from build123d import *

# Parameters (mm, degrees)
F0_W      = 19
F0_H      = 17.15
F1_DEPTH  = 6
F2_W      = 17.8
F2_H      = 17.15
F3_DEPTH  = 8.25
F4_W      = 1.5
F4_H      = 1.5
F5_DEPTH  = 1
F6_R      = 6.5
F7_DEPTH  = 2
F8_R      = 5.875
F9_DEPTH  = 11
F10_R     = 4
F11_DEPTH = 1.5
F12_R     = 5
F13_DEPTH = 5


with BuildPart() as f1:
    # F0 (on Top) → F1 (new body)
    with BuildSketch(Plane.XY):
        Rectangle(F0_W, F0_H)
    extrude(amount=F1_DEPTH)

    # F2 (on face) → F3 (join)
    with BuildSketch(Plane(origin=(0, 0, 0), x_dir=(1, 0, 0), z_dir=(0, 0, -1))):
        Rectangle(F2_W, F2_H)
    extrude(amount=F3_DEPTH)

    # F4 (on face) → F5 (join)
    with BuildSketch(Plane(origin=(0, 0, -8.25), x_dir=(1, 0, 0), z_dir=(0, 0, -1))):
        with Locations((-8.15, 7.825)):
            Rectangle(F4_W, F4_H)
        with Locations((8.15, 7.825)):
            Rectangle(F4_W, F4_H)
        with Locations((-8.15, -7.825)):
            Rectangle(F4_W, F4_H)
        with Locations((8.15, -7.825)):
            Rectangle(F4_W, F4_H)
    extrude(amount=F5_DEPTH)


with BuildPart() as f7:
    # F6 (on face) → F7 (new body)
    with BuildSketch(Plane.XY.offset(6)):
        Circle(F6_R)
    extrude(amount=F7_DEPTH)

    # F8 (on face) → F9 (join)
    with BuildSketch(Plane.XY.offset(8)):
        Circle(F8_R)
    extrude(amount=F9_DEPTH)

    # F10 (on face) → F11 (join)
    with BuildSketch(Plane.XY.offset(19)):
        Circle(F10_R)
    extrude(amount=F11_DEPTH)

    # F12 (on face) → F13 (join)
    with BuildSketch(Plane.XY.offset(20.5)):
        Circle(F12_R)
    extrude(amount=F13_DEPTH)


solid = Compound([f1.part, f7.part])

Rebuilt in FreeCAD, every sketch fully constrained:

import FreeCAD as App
import Part
import Sketcher

V = App.Vector


def add_polygon(sketch, points):
    """Adds a closed chain of lines whose ends are joined by coincident constraints."""
    first, n = sketch.GeometryCount, len(points)
    for a, b in zip(points, points[1:] + points[:1]):
        sketch.addGeometry(Part.LineSegment(App.Vector(*a, 0), App.Vector(*b, 0)), False)
    for i in range(n):
        sketch.addConstraint(Sketcher.Constraint("Coincident", first + i, 2, first + (i + 1) % n, 1))

doc = App.newDocument("Part")
params = doc.addObject("Spreadsheet::Sheet", "Params")
for row, (alias, value) in enumerate([
    ("sketch1_width", "19 mm"),
    ("sketch1_height", "17.15 mm"),
    ("pad1_length", "6 mm"),
    ("sketch2_width", "17.8 mm"),
    ("sketch2_height", "17.15 mm"),
    ("pad2_length", "8.25 mm"),
    ("sketch3_width", "1.5 mm"),
    ("pad3_length", "1 mm"),
    ("sketch4_diameter", "13 mm"),
    ("pad4_length", "2 mm"),
    ("sketch5_diameter", "11.75 mm"),
    ("pad5_length", "11 mm"),
    ("sketch6_diameter", "8 mm"),
    ("pad6_length", "1.5 mm"),
    ("sketch7_diameter", "10 mm"),
    ("pad7_length", "5 mm"),
], start=1):
    params.set(f"A{row}", alias)
    params.set(f"B{row}", "=" + value)
    params.setAlias(f"B{row}", alias)

body = doc.addObject("PartDesign::Body", "Body")

# Sketch on XY plane
sketch1 = doc.addObject("Sketcher::SketchObject", "Sketch")
body.addObject(sketch1)
sketch1.AttachmentSupport = (doc.XY_Plane, [""])
sketch1.MapMode = "FlatFace"
add_polygon(sketch1, [(-9.5, 8.575), (-9.5, -8.575), (9.5, -8.575), (9.5, 8.575)])  # lines 0-3
sketch1.addConstraint(Sketcher.Constraint("Vertical", 0))
sketch1.addConstraint(Sketcher.Constraint("Horizontal", 1))
sketch1.addConstraint(Sketcher.Constraint("Vertical", 2))
sketch1.addConstraint(Sketcher.Constraint("Horizontal", 3))
sketch1.addConstraint(Sketcher.Constraint("Symmetric", 0, 2, 2, 2, -1, 1))
sketch1.addConstraint(Sketcher.Constraint("DistanceX", 1, 1, 1, 2, 19.0))
sketch1.addConstraint(Sketcher.Constraint("DistanceY", 0, 2, 0, 1, 17.15))
sketch1.setExpression("Constraints[9]", "Params.sketch1_width")
sketch1.setExpression("Constraints[10]", "Params.sketch1_height")
pad1 = doc.addObject("PartDesign::Pad", "Pad")
body.addObject(pad1)
pad1.Profile = sketch1
pad1.setExpression("Length", "Params.pad1_length")

# Sketch on XY plane
sketch2 = doc.addObject("Sketcher::SketchObject", "Sketch001")
body.addObject(sketch2)
sketch2.AttachmentSupport = (doc.XY_Plane, [""])
sketch2.MapMode = "FlatFace"
add_polygon(sketch2, [(-8.9, -8.575), (-8.9, 8.575), (8.9, 8.575), (8.9, -8.575)])  # lines 0-3
sketch2.addConstraint(Sketcher.Constraint("Vertical", 0))
sketch2.addConstraint(Sketcher.Constraint("Horizontal", 1))
sketch2.addConstraint(Sketcher.Constraint("Vertical", 2))
sketch2.addConstraint(Sketcher.Constraint("Horizontal", 3))
sketch2.addConstraint(Sketcher.Constraint("Symmetric", 0, 2, 2, 2, -1, 1))
sketch2.addConstraint(Sketcher.Constraint("DistanceX", 1, 1, 1, 2, 17.8))
sketch2.addConstraint(Sketcher.Constraint("DistanceY", 0, 1, 0, 2, 17.15))
sketch2.setExpression("Constraints[9]", "Params.sketch2_width")
sketch2.setExpression("Constraints[10]", "Params.sketch2_height")
pad2 = doc.addObject("PartDesign::Pad", "Pad001")
body.addObject(pad2)
pad2.Profile = sketch2
pad2.setExpression("Length", "Params.pad2_length")
pad2.Reversed = True

# Sketch on XY plane
sketch3 = doc.addObject("Sketcher::SketchObject", "Sketch002")
body.addObject(sketch3)
sketch3.AttachmentSupport = (doc.XY_Plane, [""])
sketch3.MapMode = "FlatFace"
sketch3.AttachmentOffset = App.Placement(V(0, 0, -8.25), App.Rotation())
add_polygon(sketch3, [(-8.9, -8.575), (-8.9, -7.075), (-7.4, -7.075), (-7.4, -8.575)])  # lines 0-3
add_polygon(sketch3, [(7.4, -8.575), (7.4, -7.075), (8.9, -7.075), (8.9, -8.575)])  # lines 4-7
add_polygon(sketch3, [(-8.9, 7.075), (-8.9, 8.575), (-7.4, 8.575), (-7.4, 7.075)])  # lines 8-11
add_polygon(sketch3, [(7.4, 7.075), (7.4, 8.575), (8.9, 8.575), (8.9, 7.075)])  # lines 12-15
sketch3.addConstraint(Sketcher.Constraint("Vertical", 0))
sketch3.addConstraint(Sketcher.Constraint("Horizontal", 1))
sketch3.addConstraint(Sketcher.Constraint("Vertical", 2))
sketch3.addConstraint(Sketcher.Constraint("Horizontal", 3))
sketch3.addConstraint(Sketcher.Constraint("Vertical", 4))
sketch3.addConstraint(Sketcher.Constraint("Horizontal", 5))
sketch3.addConstraint(Sketcher.Constraint("Vertical", 6))
sketch3.addConstraint(Sketcher.Constraint("Horizontal", 7))
sketch3.addConstraint(Sketcher.Constraint("Vertical", 8))
sketch3.addConstraint(Sketcher.Constraint("Horizontal", 9))
sketch3.addConstraint(Sketcher.Constraint("Vertical", 10))
sketch3.addConstraint(Sketcher.Constraint("Horizontal", 11))
sketch3.addConstraint(Sketcher.Constraint("Vertical", 12))
sketch3.addConstraint(Sketcher.Constraint("Horizontal", 13))
sketch3.addConstraint(Sketcher.Constraint("Vertical", 14))
sketch3.addConstraint(Sketcher.Constraint("Horizontal", 15))
sketch3.addConstraint(Sketcher.Constraint("Symmetric", 6, 2, 8, 2, -1, 1))
sketch3.addConstraint(Sketcher.Constraint("Symmetric", 4, 2, 10, 2, -1, 1))
sketch3.addConstraint(Sketcher.Constraint("Symmetric", 2, 2, 12, 2, -1, 1))
sketch3.addConstraint(Sketcher.Constraint("Symmetric", 0, 2, 14, 2, -1, 1))
sketch3.addConstraint(Sketcher.Constraint("Symmetric", 1, 2, 4, 2, -2))
sketch3.addConstraint(Sketcher.Constraint("Symmetric", 3, 2, 6, 2, -2))
sketch3.addConstraint(Sketcher.Constraint("Equal", 15, 0))
sketch3.addConstraint(Sketcher.Constraint("DistanceX", 1, 1, 1, 2, 1.5))
sketch3.addConstraint(Sketcher.Constraint("DistanceX", 0, 2, -1, 1, 8.9))
sketch3.addConstraint(Sketcher.Constraint("DistanceY", 0, 2, 8, 2, 15.65))
sketch3.setExpression("Constraints[39]", "Params.sketch3_width")
pad3 = doc.addObject("PartDesign::Pad", "Pad002")
body.addObject(pad3)
pad3.Profile = sketch3
pad3.setExpression("Length", "Params.pad3_length")
pad3.Reversed = True
body2 = doc.addObject("PartDesign::Body", "Body001")

# Sketch on XY plane
sketch4 = doc.addObject("Sketcher::SketchObject", "Sketch003")
body2.addObject(sketch4)
sketch4.AttachmentSupport = (doc.getObject("XY_Plane001"), [""])
sketch4.MapMode = "FlatFace"
sketch4.AttachmentOffset = App.Placement(V(0, 0, 6), App.Rotation())
sketch4.addGeometry(Part.Circle(V(0, 0, 0), V(0, 0, 1), 6.5), False)
sketch4.addConstraint(Sketcher.Constraint("Coincident", 0, 3, -1, 1))
sketch4.addConstraint(Sketcher.Constraint("Diameter", 0, 13.0))
sketch4.setExpression("Constraints[1]", "Params.sketch4_diameter")
pad4 = doc.addObject("PartDesign::Pad", "Pad003")
body2.addObject(pad4)
pad4.Profile = sketch4
pad4.setExpression("Length", "Params.pad4_length")

# Sketch on XY plane
sketch5 = doc.addObject("Sketcher::SketchObject", "Sketch004")
body2.addObject(sketch5)
sketch5.AttachmentSupport = (doc.getObject("XY_Plane001"), [""])
sketch5.MapMode = "FlatFace"
sketch5.AttachmentOffset = App.Placement(V(0, 0, 8), App.Rotation())
sketch5.addGeometry(Part.Circle(V(0, 0, 0), V(0, 0, 1), 5.875), False)
sketch5.addConstraint(Sketcher.Constraint("Coincident", 0, 3, -1, 1))
sketch5.addConstraint(Sketcher.Constraint("Diameter", 0, 11.75))
sketch5.setExpression("Constraints[1]", "Params.sketch5_diameter")
pad5 = doc.addObject("PartDesign::Pad", "Pad004")
body2.addObject(pad5)
pad5.Profile = sketch5
pad5.setExpression("Length", "Params.pad5_length")

# Sketch on XY plane
sketch6 = doc.addObject("Sketcher::SketchObject", "Sketch005")
body2.addObject(sketch6)
sketch6.AttachmentSupport = (doc.getObject("XY_Plane001"), [""])
sketch6.MapMode = "FlatFace"
sketch6.AttachmentOffset = App.Placement(V(0, 0, 19), App.Rotation())
sketch6.addGeometry(Part.Circle(V(0, 0, 0), V(0, 0, 1), 4), False)
sketch6.addConstraint(Sketcher.Constraint("Coincident", 0, 3, -1, 1))
sketch6.addConstraint(Sketcher.Constraint("Diameter", 0, 8.0))
sketch6.setExpression("Constraints[1]", "Params.sketch6_diameter")
pad6 = doc.addObject("PartDesign::Pad", "Pad005")
body2.addObject(pad6)
pad6.Profile = sketch6
pad6.setExpression("Length", "Params.pad6_length")

# Sketch on XY plane
sketch7 = doc.addObject("Sketcher::SketchObject", "Sketch006")
body2.addObject(sketch7)
sketch7.AttachmentSupport = (doc.getObject("XY_Plane001"), [""])
sketch7.MapMode = "FlatFace"
sketch7.AttachmentOffset = App.Placement(V(0, 0, 20.5), App.Rotation())
sketch7.addGeometry(Part.Circle(V(0, 0, 0), V(0, 0, 1), 5), False)
sketch7.addConstraint(Sketcher.Constraint("Coincident", 0, 3, -1, 1))
sketch7.addConstraint(Sketcher.Constraint("Diameter", 0, 10.0))
sketch7.setExpression("Constraints[1]", "Params.sketch7_diameter")
pad7 = doc.addObject("PartDesign::Pad", "Pad006")
body2.addObject(pad7)
pad7.Profile = sketch7
pad7.setExpression("Length", "Params.pad7_length")

doc.recompute()
